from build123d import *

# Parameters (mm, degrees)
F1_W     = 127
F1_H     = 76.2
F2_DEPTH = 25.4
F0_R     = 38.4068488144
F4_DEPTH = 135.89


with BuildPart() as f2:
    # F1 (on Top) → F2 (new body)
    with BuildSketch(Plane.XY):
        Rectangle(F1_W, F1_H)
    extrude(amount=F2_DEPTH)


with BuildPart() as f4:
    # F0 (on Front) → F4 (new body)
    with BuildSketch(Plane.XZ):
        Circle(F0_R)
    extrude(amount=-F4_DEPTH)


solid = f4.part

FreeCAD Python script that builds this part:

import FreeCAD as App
import Part
import Sketcher
Q = App.Units.Quantity


def add_polygon(sketch, points):
    """Adds a closed chain of lines whose ends are joined by coincident constraints."""
    first, n = sketch.GeometryCount, len(points)
    for a, b in zip(points, points[1:] + points[:1]):
        sketch.addGeometry(Part.LineSegment(App.Vector(*a, 0), App.Vector(*b, 0)), False)
    for i in range(n):
        sketch.addConstraint(Sketcher.Constraint("Coincident", first + i, 2, first + (i + 1) % n, 1))

doc = App.newDocument("Part")
params = doc.addObject("Spreadsheet::Sheet", "Params")
for row, (alias, value) in enumerate([
    ("sketch1_width", "5 in"),
    ("sketch1_height", "3 in"),
    ("pad1_length", "1 in"),
    ("pad2_length", "5.35 in"),
], start=1):
    params.set(f"A{row}", alias)
    params.set(f"B{row}", "=" + value)
    params.setAlias(f"B{row}", alias)

body = doc.addObject("PartDesign::Body", "Body")

# Sketch on XY plane
sketch1 = body.newObject("Sketcher::SketchObject", "Sketch")
sketch1.AttachmentSupport = (doc.getObject("XY_Plane"), [""])
sketch1.MapMode = "FlatFace"
add_polygon(sketch1, [(-64, 38), (-64, -38), (64, -38), (64, 38)])  # lines 0-3
sketch1.addConstraint(Sketcher.Constraint("Vertical", 0))
sketch1.addConstraint(Sketcher.Constraint("Horizontal", 1))
sketch1.addConstraint(Sketcher.Constraint("Vertical", 2))
sketch1.addConstraint(Sketcher.Constraint("Horizontal", 3))
sketch1.addConstraint(Sketcher.Constraint("Symmetric", 0, 2, 2, 2, -1, 1))
sketch1.addConstraint(Sketcher.Constraint("DistanceX", 1, 1, 1, 2, Q("5 in")))
sketch1.addConstraint(Sketcher.Constraint("DistanceY", 0, 2, 0, 1, Q("3 in")))
sketch1.setExpression("Constraints[9]", "Params.sketch1_width")
sketch1.setExpression("Constraints[10]", "Params.sketch1_height")
pad1 = body.newObject("PartDesign::Pad", "Pad")
pad1.Profile = sketch1
pad1.setExpression("Length", "Params.pad1_length")
body2 = doc.addObject("PartDesign::Body", "Body001")

# Sketch on XZ plane
sketch2 = body2.newObject("Sketcher::SketchObject", "Sketch001")
sketch2.AttachmentSupport = (doc.getObject("XZ_Plane001"), [""])
sketch2.MapMode = "FlatFace"
sketch2.addGeometry(Part.Circle(App.Vector(0, 0, 0), App.Vector(0, 0, 1), 38), False)
sketch2.addConstraint(Sketcher.Constraint("Coincident", 0, 3, -1, 1))
sketch2.addConstraint(Sketcher.Constraint("Diameter", 0, 76.813698))
pad2 = body2.newObject("PartDesign::Pad", "Pad001")
pad2.Profile = sketch2
pad2.setExpression("Length", "Params.pad2_length")
pad2.Reversed = True
body.Visibility = False

doc.recompute()
